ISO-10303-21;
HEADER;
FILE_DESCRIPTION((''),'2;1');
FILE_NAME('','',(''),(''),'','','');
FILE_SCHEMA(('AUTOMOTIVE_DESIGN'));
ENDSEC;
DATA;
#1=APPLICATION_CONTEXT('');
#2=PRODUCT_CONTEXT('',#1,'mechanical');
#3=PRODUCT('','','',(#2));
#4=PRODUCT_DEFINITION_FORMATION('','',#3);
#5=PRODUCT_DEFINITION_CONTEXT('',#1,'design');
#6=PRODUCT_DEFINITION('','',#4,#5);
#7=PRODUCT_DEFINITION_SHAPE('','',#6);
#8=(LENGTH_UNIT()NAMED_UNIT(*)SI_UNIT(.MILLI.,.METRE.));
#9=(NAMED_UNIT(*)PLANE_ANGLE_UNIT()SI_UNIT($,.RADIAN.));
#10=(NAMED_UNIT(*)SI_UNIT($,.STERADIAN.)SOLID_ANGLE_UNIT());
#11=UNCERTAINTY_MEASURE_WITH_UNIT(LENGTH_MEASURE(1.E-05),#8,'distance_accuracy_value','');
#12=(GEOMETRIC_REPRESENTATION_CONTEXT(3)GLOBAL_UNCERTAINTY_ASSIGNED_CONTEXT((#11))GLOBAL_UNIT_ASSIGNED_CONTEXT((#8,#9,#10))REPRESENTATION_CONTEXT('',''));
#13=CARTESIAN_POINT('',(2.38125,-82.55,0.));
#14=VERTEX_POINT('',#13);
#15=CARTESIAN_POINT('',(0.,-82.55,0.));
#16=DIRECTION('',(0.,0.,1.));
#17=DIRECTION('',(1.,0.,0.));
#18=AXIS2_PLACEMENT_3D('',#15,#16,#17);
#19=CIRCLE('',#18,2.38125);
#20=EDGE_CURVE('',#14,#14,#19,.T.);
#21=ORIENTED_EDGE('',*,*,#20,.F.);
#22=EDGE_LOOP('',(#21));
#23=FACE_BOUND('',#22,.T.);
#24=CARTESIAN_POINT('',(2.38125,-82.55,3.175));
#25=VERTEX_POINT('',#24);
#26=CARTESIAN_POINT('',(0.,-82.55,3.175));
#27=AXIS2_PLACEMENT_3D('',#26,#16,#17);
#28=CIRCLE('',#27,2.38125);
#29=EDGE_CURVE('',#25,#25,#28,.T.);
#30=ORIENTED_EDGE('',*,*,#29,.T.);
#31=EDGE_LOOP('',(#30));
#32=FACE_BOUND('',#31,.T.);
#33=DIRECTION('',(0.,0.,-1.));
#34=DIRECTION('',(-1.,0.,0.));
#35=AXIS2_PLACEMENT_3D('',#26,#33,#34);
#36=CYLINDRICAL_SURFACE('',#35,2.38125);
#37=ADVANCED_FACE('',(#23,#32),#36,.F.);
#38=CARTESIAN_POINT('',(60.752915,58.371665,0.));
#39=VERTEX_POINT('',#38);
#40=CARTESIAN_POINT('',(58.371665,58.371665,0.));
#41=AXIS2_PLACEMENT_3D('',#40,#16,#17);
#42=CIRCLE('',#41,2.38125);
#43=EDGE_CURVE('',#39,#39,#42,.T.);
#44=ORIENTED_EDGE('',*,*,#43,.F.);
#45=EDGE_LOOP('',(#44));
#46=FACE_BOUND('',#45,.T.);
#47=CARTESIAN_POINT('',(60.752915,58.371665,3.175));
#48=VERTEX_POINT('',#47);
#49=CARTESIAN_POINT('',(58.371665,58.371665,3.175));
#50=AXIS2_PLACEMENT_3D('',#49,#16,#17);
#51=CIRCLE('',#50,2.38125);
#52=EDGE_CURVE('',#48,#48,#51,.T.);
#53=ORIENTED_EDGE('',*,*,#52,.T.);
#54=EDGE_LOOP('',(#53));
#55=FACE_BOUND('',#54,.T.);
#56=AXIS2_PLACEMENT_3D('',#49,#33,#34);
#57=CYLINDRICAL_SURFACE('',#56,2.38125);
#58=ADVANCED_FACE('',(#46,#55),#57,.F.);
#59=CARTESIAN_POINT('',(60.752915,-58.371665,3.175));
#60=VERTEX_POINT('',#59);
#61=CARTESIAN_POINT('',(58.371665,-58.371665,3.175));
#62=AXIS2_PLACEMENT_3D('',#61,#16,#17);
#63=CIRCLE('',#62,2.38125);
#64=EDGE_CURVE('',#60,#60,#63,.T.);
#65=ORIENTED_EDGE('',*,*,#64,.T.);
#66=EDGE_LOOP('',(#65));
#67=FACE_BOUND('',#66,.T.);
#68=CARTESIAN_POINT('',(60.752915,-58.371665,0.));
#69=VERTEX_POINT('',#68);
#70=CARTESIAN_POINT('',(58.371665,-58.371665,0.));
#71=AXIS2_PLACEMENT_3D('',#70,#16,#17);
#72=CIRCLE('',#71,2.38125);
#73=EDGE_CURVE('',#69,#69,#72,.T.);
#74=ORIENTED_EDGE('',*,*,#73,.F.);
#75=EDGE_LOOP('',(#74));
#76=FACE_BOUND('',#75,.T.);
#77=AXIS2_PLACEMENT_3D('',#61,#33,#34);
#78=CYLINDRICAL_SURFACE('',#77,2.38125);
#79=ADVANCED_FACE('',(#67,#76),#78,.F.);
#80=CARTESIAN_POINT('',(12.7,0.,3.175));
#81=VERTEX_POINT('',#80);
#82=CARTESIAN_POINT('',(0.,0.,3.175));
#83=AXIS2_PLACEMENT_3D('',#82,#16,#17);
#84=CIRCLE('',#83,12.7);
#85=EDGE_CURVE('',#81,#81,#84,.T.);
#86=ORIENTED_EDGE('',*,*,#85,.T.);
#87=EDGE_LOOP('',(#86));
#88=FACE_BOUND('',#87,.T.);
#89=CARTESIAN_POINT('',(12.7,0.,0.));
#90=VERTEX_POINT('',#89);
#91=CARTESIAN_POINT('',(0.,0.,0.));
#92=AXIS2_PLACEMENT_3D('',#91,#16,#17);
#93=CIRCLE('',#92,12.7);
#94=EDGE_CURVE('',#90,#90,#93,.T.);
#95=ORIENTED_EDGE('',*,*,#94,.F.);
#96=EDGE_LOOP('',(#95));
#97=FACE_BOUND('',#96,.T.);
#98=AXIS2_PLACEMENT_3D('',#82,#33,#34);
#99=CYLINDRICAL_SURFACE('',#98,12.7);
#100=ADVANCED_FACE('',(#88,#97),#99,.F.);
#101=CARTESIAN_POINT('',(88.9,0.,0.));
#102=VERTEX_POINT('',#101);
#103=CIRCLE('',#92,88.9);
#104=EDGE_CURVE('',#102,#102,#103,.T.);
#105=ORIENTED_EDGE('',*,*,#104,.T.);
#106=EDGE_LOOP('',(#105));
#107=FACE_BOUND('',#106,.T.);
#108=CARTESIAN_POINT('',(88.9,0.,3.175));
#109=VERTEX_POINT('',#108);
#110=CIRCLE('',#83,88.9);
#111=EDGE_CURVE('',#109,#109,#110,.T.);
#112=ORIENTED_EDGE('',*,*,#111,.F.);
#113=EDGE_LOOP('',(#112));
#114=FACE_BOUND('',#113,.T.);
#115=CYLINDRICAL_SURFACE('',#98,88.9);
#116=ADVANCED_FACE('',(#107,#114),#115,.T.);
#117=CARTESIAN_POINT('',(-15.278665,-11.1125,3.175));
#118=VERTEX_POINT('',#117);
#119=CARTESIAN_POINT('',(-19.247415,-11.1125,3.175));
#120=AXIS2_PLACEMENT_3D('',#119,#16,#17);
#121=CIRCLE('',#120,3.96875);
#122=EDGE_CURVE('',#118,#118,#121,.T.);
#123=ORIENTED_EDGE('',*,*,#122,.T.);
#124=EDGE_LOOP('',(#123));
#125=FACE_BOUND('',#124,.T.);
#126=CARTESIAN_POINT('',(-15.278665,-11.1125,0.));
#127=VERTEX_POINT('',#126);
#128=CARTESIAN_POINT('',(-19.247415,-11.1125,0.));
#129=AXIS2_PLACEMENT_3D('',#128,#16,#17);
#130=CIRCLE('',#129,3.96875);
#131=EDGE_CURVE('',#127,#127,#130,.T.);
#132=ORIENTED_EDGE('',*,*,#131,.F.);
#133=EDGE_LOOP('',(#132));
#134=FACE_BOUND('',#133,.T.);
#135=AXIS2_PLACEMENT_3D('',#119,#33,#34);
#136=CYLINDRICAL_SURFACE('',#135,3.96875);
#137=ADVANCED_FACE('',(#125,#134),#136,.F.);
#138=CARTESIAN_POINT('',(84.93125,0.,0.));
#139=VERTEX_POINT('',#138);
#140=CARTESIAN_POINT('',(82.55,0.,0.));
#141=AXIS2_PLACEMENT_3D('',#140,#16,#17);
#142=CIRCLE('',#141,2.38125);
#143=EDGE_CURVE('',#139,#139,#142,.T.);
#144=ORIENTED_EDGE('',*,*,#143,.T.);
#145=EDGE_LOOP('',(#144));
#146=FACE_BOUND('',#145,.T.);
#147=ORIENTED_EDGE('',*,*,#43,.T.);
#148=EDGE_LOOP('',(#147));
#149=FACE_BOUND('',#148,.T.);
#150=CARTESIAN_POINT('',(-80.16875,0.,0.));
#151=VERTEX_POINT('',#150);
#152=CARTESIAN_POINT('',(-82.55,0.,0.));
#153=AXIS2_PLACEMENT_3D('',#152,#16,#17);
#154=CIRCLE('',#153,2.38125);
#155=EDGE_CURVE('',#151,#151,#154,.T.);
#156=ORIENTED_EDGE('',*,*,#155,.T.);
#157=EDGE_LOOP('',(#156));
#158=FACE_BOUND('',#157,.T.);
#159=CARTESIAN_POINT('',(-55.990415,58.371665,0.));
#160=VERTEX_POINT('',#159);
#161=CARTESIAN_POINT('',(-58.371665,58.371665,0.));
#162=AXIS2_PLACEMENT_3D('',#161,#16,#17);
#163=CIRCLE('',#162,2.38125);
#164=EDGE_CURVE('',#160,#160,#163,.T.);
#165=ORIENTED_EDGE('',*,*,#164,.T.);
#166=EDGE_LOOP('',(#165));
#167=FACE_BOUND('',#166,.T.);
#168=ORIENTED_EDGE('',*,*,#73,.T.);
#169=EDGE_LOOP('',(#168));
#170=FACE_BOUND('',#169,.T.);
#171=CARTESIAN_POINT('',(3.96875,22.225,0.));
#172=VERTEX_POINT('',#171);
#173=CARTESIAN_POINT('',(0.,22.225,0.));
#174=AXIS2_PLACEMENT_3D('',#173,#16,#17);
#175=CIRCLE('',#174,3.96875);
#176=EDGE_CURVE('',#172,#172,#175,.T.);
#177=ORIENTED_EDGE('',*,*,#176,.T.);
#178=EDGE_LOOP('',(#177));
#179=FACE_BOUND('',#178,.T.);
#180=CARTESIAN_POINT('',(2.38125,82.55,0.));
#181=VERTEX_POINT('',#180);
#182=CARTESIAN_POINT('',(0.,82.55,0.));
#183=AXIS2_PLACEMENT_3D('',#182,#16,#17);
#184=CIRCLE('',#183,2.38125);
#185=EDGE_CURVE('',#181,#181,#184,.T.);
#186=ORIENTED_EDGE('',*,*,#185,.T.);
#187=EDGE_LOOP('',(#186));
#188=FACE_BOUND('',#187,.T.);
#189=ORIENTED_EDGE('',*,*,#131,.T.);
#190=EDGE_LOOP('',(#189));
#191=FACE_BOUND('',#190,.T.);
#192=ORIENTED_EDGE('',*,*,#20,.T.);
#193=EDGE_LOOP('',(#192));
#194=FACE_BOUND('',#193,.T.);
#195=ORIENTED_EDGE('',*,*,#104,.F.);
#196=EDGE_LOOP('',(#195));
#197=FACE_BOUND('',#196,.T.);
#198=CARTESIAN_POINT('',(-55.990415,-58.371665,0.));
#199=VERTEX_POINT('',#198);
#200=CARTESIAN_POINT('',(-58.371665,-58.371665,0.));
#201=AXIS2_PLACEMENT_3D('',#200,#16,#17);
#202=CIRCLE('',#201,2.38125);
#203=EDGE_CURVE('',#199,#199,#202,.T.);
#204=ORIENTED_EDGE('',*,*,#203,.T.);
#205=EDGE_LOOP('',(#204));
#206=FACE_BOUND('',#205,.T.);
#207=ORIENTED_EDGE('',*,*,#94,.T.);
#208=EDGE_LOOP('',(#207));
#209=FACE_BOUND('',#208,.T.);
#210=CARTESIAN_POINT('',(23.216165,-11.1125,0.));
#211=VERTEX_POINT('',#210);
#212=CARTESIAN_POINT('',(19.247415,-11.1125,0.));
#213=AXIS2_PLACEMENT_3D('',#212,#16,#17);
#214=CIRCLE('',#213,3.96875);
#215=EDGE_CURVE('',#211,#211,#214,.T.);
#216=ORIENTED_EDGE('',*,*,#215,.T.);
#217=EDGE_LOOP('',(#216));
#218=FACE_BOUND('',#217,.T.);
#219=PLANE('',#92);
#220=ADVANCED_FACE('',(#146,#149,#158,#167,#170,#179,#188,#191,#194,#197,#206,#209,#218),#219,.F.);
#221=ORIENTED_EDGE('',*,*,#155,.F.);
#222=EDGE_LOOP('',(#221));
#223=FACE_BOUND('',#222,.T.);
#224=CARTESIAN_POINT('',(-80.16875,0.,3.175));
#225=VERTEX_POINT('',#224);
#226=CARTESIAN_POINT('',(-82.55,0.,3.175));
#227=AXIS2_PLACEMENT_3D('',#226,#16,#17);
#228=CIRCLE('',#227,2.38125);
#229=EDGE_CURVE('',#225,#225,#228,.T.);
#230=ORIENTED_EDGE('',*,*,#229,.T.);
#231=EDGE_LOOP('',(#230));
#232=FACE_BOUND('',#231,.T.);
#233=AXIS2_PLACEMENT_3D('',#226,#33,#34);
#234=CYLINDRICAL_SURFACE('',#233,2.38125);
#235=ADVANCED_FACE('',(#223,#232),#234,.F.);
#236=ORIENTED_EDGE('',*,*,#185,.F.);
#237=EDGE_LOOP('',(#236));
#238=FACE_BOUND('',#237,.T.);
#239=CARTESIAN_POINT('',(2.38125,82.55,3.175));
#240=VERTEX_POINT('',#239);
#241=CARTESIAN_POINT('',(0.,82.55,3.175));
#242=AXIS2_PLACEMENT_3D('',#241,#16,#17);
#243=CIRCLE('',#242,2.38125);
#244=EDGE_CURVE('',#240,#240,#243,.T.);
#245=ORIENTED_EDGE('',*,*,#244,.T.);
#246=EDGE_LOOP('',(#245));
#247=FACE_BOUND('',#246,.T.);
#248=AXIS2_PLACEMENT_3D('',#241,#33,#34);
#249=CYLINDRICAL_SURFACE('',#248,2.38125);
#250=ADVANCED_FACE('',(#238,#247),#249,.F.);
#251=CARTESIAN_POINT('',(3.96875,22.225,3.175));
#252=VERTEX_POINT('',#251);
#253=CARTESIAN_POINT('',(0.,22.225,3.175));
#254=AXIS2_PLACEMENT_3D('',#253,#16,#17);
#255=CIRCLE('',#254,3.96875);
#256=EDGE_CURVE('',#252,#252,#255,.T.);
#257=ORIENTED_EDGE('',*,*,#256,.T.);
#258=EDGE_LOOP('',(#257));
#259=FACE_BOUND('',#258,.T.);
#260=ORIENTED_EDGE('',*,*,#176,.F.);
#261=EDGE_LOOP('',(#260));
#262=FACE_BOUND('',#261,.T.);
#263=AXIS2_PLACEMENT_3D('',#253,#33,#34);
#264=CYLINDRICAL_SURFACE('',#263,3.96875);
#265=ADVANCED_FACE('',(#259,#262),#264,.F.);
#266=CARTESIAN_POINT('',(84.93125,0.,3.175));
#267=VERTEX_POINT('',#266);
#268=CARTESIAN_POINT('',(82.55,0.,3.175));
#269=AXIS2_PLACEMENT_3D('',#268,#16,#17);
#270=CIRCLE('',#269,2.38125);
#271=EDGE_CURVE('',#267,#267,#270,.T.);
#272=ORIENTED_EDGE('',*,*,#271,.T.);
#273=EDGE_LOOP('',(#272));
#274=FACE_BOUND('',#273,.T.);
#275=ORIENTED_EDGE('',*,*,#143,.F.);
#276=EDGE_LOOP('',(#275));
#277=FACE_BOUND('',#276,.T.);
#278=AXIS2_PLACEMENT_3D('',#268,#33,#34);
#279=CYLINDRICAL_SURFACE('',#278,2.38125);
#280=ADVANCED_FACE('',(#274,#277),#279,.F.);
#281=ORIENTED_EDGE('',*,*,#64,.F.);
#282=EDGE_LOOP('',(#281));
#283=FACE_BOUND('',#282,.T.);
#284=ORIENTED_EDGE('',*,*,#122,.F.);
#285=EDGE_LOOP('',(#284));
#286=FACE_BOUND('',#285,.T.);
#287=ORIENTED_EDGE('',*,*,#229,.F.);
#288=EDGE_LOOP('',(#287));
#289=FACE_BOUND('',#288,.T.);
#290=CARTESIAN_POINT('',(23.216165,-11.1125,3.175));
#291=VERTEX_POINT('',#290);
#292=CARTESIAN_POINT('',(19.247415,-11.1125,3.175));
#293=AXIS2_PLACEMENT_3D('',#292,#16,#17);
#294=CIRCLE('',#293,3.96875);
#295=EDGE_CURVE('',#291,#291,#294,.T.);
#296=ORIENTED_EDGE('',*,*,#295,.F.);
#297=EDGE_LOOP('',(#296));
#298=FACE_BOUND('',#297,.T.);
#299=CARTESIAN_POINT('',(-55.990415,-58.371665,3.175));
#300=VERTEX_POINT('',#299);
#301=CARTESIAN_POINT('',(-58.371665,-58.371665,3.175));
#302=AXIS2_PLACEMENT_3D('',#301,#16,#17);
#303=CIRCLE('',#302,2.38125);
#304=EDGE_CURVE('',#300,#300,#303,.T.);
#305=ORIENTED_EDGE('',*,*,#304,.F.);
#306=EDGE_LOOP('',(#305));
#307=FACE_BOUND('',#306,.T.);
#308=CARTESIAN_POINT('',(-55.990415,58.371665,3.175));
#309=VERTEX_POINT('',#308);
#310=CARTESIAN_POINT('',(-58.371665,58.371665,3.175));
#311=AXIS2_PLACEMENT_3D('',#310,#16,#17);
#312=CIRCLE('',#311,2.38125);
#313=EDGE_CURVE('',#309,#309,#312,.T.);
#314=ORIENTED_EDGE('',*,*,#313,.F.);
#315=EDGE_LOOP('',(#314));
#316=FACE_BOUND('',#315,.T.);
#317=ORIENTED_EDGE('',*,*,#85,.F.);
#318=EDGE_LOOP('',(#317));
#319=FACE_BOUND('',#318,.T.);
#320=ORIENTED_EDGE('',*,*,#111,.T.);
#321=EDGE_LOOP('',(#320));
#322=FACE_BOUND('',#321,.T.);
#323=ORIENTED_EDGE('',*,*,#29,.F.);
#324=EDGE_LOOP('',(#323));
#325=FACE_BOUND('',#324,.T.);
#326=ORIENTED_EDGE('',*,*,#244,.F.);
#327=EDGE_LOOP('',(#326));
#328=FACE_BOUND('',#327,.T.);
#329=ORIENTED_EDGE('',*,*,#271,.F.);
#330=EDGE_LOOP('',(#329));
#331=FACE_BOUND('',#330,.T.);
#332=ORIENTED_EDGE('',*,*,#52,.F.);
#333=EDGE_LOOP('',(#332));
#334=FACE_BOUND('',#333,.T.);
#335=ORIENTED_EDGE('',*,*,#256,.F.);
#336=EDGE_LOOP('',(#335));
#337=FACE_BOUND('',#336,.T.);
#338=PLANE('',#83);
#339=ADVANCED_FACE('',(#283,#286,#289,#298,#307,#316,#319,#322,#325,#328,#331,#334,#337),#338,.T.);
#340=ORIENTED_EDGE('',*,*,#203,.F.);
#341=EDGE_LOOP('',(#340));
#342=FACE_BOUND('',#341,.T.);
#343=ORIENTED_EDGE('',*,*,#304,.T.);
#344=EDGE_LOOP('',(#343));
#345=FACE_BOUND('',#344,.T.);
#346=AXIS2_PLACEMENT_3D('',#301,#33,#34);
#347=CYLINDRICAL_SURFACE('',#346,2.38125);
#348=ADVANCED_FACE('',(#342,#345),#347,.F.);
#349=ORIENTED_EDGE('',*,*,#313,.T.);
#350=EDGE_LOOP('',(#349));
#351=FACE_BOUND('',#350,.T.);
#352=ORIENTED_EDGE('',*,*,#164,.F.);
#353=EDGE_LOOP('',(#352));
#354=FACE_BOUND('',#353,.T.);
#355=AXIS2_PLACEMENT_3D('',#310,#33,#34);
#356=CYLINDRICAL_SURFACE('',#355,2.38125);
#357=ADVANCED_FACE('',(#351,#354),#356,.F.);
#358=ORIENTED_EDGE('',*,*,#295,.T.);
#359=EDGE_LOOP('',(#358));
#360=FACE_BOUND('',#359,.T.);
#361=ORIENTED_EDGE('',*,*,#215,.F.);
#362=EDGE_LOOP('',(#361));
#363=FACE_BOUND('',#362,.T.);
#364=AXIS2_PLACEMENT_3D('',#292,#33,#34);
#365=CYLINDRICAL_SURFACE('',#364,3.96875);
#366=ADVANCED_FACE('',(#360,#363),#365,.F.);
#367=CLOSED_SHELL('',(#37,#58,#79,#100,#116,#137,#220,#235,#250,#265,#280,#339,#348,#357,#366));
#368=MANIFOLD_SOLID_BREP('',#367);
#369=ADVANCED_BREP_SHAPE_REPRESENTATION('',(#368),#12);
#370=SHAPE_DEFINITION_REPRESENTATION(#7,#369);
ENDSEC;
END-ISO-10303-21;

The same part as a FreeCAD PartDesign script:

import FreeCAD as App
import Part
import Sketcher
Q = App.Units.Quantity

doc = App.newDocument("Part")
body = doc.addObject("PartDesign::Body", "Body")

sketch1 = body.newObject("Sketcher::SketchObject", "Sketch")
sketch1.AttachmentSupport = (doc.getObject("XY_Plane"), [""])
sketch1.MapMode = "FlatFace"
sketch1.addGeometry(Part.Circle(App.Vector(0, 0, 0), App.Vector(0, 0, 1), 88.9), False)
sketch1.addGeometry(Part.Circle(App.Vector(-58.371665, -58.371665, 0), App.Vector(0, 0, 1), 2.38125), False)
sketch1.addGeometry(Part.Circle(App.Vector(0, -82.55, 0), App.Vector(0, 0, 1), 2.38125), False)
sketch1.addGeometry(Part.Circle(App.Vector(-82.55, 0, 0), App.Vector(0, 0, 1), 2.38125), False)
sketch1.addGeometry(Part.Circle(App.Vector(-19.247415, -11.1125, 0), App.Vector(0, 0, 1), 3.96875), False)
sketch1.addGeometry(Part.Circle(App.Vector(0, 0, 0), App.Vector(0, 0, 1), 12.7), False)
sketch1.addGeometry(Part.Circle(App.Vector(58.371665, -58.371665, 0), App.Vector(0, 0, 1), 2.38125), False)
sketch1.addGeometry(Part.Circle(App.Vector(19.247415, -11.1125, 0), App.Vector(0, 0, 1), 3.96875), False)
sketch1.addGeometry(Part.Circle(App.Vector(82.55, 0, 0), App.Vector(0, 0, 1), 2.38125), False)
sketch1.addGeometry(Part.Circle(App.Vector(0, 22.225, 0), App.Vector(0, 0, 1), 3.96875), False)
sketch1.addGeometry(Part.Circle(App.Vector(-58.371665, 58.371665, 0), App.Vector(0, 0, 1), 2.38125), False)
sketch1.addGeometry(Part.Circle(App.Vector(0, 82.55, 0), App.Vector(0, 0, 1), 2.38125), False)
sketch1.addGeometry(Part.Circle(App.Vector(58.371665, 58.371665, 0), App.Vector(0, 0, 1), 2.38125), False)
sketch1.addConstraint(Sketcher.Constraint("Coincident", 0, 3, -1, 1))
sketch1.addConstraint(Sketcher.Constraint("Coincident", 5, 3, -1, 1))
sketch1.addConstraint(Sketcher.Constraint("Equal", 1, 2))
sketch1.addConstraint(Sketcher.Constraint("Equal", 2, 3))
sketch1.addConstraint(Sketcher.Constraint("Equal", 3, 6))
sketch1.addConstraint(Sketcher.Constraint("Equal", 4, 7))
sketch1.addConstraint(Sketcher.Constraint("Equal", 6, 8))
sketch1.addConstraint(Sketcher.Constraint("Equal", 7, 9))
sketch1.addConstraint(Sketcher.Constraint("Equal", 8, 10))
sketch1.addConstraint(Sketcher.Constraint("Equal", 10, 11))
sketch1.addConstraint(Sketcher.Constraint("Equal", 11, 12))
sketch1.addConstraint(Sketcher.Constraint("Symmetric", 3, 3, 8, 3, -1, 1))
sketch1.addConstraint(Sketcher.Constraint("Symmetric", 6, 3, 10, 3, -1, 1))
sketch1.addConstraint(Sketcher.Constraint("Symmetric", 2, 3, 11, 3, -1, 1))
sketch1.addConstraint(Sketcher.Constraint("Symmetric", 1, 3, 12, 3, -1, 1))
sketch1.addConstraint(Sketcher.Constraint("Symmetric", 1, 3, 6, 3, -2))
sketch1.addConstraint(Sketcher.Constraint("Symmetric", 4, 3, 7, 3, -2))
sketch1.addConstraint(Sketcher.Constraint("PointOnObject", 2, 3, -2))
sketch1.addConstraint(Sketcher.Constraint("PointOnObject", 3, 3, -1))
sketch1.addConstraint(Sketcher.Constraint("PointOnObject", 9, 3, -2))
sketch1.addConstraint(Sketcher.Constraint("Diameter", 0, Q("7 in")))
sketch1.addConstraint(Sketcher.Constraint("Diameter", 5, Q("1 in")))
sketch1.addConstraint(Sketcher.Constraint("Diameter", 1, Q("0.1875 in")))
sketch1.addConstraint(Sketcher.Constraint("Diameter", 4, Q("0.3125 in")))
sketch1.addConstraint(Sketcher.Constraint("DistanceY", 2, 3, -1, 1, Q("3.25 in")))
sketch1.addConstraint(Sketcher.Constraint("DistanceX", 3, 3, -1, 1, Q("3.25 in")))
sketch1.addConstraint(Sketcher.Constraint("DistanceY", 4, 3, -1, 1, Q("0.4375 in")))
sketch1.addConstraint(Sketcher.Constraint("DistanceY", -1, 1, 9, 3, Q("0.875 in")))
sketch1.addConstraint(Sketcher.Constraint("DistanceX", 1, 3, 4, 3, Q("39.12425 mm")))
sketch1.addConstraint(Sketcher.Constraint("DistanceX", 4, 3, 6, 3, Q("77.619079 mm")))
sketch1.addConstraint(Sketcher.Constraint("DistanceY", 1, 3, -1, 1, Q("58.371665 mm")))
pad1 = body.newObject("PartDesign::Pad", "Pad")
pad1.Profile = sketch1
pad1.Length = Q("0.125 in")

doc.recompute()
